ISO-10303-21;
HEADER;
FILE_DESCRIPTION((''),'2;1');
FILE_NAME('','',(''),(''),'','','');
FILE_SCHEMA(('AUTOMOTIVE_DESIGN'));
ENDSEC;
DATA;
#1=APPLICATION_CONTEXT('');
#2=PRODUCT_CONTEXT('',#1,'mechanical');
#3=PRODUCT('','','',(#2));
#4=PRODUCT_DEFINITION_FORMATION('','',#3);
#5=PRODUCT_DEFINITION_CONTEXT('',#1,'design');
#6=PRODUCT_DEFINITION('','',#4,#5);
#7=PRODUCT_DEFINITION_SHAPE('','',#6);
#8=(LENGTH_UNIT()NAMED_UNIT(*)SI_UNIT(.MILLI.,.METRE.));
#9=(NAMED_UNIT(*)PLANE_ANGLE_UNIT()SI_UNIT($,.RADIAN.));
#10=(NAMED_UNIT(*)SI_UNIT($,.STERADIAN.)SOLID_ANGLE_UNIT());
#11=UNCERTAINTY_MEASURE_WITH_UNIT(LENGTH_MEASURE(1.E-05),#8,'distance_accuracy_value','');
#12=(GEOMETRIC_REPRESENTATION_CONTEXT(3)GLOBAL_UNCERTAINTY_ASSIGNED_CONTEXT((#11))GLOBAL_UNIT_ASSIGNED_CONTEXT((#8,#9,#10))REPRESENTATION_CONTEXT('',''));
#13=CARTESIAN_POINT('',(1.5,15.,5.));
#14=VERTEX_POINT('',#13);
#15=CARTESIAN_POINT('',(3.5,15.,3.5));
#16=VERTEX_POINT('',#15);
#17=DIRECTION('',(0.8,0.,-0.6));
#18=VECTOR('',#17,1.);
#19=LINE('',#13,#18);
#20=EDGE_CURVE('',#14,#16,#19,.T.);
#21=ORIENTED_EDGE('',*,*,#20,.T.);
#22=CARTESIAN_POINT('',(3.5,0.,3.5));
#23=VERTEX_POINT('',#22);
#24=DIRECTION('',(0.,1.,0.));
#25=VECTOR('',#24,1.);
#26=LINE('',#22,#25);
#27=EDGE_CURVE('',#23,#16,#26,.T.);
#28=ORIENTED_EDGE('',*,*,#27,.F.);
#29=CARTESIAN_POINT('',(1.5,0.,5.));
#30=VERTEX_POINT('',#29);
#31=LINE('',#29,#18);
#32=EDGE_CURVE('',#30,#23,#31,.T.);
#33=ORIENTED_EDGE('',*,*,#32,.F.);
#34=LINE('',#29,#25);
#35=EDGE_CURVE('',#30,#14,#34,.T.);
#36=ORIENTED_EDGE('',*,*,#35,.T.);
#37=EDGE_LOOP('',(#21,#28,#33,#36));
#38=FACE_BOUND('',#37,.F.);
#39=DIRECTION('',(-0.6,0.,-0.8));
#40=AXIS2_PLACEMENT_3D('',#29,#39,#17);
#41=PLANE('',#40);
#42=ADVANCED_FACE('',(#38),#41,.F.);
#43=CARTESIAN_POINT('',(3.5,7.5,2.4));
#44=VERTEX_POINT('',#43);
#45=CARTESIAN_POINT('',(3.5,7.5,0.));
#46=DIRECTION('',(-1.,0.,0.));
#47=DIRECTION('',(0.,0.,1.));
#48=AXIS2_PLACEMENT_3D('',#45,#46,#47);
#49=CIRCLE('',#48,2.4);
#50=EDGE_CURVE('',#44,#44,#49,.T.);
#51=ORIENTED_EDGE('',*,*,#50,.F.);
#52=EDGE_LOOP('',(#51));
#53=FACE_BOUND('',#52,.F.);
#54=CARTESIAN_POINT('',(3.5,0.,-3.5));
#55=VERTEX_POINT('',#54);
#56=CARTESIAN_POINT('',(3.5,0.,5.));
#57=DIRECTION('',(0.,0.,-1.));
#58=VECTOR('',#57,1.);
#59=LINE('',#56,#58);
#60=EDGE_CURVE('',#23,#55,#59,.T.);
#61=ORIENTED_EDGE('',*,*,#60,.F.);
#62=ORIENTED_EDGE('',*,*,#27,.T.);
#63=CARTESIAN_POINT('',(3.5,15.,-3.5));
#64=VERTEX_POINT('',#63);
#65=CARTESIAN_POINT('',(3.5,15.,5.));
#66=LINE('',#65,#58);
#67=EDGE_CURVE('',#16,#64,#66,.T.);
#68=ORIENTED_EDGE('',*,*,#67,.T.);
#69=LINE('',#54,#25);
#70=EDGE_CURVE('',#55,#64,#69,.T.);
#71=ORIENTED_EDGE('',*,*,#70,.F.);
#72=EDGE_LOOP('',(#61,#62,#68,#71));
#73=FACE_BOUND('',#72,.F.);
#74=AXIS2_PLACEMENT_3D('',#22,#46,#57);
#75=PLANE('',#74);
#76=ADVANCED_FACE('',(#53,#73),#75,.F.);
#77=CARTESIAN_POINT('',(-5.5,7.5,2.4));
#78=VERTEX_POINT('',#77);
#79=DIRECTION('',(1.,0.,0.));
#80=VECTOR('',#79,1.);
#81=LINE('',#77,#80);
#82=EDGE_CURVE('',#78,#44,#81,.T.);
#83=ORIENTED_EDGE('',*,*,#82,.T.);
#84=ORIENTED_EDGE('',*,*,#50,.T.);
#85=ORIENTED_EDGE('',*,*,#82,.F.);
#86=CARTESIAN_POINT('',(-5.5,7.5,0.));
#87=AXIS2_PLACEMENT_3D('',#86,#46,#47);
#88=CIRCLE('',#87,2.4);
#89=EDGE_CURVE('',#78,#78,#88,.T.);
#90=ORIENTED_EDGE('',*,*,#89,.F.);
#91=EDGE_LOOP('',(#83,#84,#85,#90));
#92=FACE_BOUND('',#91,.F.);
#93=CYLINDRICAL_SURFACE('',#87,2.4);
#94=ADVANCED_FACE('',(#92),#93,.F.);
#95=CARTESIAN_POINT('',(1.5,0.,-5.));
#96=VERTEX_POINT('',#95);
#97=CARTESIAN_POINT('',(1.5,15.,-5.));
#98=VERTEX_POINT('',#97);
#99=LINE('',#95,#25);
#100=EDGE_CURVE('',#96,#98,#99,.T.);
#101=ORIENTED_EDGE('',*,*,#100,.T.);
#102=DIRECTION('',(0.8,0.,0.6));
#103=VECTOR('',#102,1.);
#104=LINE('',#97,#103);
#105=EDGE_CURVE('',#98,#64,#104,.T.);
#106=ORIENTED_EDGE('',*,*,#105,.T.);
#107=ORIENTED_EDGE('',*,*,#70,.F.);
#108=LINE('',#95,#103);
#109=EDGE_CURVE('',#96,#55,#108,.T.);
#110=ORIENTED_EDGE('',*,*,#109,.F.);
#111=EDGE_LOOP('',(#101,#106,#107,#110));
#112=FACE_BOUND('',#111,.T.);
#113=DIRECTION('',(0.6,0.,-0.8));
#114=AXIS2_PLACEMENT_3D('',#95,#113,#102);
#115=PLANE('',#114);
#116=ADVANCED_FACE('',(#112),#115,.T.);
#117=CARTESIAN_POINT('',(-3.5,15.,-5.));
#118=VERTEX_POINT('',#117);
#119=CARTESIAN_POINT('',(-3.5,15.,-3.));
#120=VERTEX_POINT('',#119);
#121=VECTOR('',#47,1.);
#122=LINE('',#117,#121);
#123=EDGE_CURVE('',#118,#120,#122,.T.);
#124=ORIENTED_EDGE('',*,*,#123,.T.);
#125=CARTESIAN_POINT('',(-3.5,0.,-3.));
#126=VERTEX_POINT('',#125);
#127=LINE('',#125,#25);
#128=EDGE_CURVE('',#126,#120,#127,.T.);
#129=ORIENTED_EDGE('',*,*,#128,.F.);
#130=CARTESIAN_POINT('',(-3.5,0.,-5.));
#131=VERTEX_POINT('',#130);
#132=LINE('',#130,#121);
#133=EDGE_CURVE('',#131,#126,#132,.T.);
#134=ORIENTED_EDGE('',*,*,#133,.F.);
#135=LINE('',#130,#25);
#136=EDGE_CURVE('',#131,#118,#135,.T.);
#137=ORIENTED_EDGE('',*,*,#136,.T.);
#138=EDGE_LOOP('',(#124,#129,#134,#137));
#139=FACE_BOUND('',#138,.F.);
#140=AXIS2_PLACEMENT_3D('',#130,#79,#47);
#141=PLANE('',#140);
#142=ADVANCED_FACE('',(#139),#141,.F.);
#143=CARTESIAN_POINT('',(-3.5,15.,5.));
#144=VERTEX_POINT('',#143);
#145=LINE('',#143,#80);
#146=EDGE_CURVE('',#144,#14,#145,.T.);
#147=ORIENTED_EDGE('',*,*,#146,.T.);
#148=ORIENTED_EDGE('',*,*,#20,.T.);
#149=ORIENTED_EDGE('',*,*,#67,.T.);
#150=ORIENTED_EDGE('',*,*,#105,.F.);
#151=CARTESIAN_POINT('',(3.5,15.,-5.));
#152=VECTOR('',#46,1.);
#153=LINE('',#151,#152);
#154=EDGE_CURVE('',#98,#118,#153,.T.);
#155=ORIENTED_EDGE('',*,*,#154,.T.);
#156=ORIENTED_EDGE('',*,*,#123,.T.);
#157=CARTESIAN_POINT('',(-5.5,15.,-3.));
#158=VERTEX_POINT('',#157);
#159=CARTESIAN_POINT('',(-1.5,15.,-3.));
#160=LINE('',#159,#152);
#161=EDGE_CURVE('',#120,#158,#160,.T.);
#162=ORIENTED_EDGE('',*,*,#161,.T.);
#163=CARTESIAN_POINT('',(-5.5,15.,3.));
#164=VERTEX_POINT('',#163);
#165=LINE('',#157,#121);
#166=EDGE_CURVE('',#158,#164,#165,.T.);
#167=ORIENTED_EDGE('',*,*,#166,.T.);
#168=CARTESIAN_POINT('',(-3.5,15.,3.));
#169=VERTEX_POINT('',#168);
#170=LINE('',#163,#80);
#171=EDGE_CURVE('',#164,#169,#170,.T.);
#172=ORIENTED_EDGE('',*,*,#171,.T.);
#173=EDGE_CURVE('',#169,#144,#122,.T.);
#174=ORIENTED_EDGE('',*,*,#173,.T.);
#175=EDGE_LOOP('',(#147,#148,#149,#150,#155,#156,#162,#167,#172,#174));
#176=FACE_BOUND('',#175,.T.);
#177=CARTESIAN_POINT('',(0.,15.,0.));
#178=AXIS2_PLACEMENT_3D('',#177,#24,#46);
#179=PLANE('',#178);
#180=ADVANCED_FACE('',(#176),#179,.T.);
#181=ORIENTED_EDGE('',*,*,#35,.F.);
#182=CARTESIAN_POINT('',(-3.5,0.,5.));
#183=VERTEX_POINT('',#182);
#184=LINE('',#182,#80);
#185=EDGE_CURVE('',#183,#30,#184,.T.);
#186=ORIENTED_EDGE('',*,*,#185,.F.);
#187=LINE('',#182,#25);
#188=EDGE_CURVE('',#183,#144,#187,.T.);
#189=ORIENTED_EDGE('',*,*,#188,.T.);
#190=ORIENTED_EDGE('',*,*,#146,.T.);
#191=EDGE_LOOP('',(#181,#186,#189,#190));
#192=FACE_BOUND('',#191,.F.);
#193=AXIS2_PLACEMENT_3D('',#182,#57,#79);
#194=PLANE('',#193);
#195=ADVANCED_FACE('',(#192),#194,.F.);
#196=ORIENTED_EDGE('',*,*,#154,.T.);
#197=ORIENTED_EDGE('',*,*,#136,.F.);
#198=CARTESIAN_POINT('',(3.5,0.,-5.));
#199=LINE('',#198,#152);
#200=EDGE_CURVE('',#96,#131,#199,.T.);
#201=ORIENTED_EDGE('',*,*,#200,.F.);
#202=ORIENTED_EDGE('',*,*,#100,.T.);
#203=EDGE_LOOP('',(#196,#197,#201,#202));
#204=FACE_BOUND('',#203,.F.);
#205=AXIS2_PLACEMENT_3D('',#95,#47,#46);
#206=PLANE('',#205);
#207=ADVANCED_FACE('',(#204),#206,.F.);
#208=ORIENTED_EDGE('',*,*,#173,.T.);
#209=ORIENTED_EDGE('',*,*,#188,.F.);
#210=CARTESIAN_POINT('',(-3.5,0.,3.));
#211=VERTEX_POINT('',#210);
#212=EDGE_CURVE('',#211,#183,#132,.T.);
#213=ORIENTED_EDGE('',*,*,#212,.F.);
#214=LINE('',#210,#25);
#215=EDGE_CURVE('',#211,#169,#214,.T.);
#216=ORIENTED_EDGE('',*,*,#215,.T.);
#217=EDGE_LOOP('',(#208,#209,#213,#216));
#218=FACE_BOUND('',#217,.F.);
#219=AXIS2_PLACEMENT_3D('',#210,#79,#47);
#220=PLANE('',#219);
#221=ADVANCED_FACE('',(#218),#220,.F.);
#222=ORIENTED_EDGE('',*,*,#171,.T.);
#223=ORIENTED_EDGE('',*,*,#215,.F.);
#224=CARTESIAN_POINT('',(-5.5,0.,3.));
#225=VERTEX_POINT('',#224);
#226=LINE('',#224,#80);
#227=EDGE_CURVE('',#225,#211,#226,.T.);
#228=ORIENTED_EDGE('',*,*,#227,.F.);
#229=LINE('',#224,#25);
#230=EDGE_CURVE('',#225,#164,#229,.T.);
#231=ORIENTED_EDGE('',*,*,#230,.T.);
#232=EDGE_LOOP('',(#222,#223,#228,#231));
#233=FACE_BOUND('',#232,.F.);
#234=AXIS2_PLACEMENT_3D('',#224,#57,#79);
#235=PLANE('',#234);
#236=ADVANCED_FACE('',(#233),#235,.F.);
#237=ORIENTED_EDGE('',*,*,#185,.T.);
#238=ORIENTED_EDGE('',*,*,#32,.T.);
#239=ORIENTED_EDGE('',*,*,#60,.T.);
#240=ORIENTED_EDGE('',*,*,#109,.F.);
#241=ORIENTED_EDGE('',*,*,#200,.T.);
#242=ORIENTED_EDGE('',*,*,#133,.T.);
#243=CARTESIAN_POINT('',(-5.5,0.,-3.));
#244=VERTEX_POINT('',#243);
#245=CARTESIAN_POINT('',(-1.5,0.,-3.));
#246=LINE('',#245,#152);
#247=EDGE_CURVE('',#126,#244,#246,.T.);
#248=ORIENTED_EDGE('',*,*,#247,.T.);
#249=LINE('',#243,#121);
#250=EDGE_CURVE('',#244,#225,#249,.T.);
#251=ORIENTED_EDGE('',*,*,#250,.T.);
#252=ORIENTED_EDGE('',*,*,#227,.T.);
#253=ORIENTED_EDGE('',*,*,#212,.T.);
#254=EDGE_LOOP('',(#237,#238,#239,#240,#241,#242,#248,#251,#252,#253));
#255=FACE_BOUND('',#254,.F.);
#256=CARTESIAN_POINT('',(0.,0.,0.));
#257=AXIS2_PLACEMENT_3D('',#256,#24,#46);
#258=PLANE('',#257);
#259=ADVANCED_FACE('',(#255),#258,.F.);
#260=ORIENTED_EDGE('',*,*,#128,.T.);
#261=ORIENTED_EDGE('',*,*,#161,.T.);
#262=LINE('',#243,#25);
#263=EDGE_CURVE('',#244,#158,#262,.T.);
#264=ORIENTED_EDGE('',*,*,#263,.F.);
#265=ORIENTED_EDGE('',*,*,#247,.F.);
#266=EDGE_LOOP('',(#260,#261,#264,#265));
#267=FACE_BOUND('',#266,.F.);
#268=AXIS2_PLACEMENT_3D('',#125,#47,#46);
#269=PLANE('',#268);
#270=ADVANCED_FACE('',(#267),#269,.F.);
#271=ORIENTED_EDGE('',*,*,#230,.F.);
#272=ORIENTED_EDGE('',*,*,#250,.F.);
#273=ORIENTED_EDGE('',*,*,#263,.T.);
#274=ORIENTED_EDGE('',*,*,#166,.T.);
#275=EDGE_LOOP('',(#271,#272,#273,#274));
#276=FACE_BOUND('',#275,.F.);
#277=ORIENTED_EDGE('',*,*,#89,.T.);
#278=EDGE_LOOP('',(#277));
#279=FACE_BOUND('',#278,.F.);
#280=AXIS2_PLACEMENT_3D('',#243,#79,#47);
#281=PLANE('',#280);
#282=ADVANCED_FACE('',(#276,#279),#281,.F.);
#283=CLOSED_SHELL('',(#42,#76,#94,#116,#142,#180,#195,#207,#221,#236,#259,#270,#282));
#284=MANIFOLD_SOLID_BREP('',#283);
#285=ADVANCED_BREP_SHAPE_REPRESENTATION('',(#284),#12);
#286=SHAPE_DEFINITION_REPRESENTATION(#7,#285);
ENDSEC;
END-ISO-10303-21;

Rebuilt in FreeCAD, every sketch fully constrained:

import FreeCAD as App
import Part
import Sketcher
from FreeCAD import Vector

doc = App.newDocument("Part")
body = doc.addObject("PartDesign::Body", "Body")

sketch1 = body.newObject("Sketcher::SketchObject", "Sketch")
sketch1.AttachmentSupport = (doc.getObject("XZ_Plane"), [""])
sketch1.MapMode = "FlatFace"
sketch1.addGeometry([
    Part.LineSegment(Vector(-3.5, 3, 0), Vector(-3.5, 5, 0)),
    Part.LineSegment(Vector(-3.5, 5, 0), Vector(1.5, 5, 0)),
    Part.LineSegment(Vector(1.5, 5, 0), Vector(3.5, 3.5, 0)),
    Part.LineSegment(Vector(3.5, 3.5, 0), Vector(3.5, -3.5, 0)),
    Part.LineSegment(Vector(3.5, -3.5, 0), Vector(1.5, -5, 0)),
    Part.LineSegment(Vector(1.5, -5, 0), Vector(-3.5, -5, 0)),
    Part.LineSegment(Vector(-3.5, -5, 0), Vector(-3.5, -3, 0)),
    Part.LineSegment(Vector(-3.5, -3, 0), Vector(-5.5, -3, 0)),
    Part.LineSegment(Vector(-5.5, -3, 0), Vector(-5.5, 3, 0)),
    Part.LineSegment(Vector(-5.5, 3, 0), Vector(-3.5, 3, 0)),
], False)
sketch1.addConstraint([
    Sketcher.Constraint("Coincident", 0, 2, 1, 1),
    Sketcher.Constraint("Coincident", 1, 2, 2, 1),
    Sketcher.Constraint("Coincident", 2, 2, 3, 1),
    Sketcher.Constraint("Coincident", 3, 2, 4, 1),
    Sketcher.Constraint("Coincident", 4, 2, 5, 1),
    Sketcher.Constraint("Coincident", 5, 2, 6, 1),
    Sketcher.Constraint("Coincident", 6, 2, 7, 1),
    Sketcher.Constraint("Coincident", 7, 2, 8, 1),
    Sketcher.Constraint("Coincident", 8, 2, 9, 1),
    Sketcher.Constraint("Coincident", 9, 2, 0, 1),
    Sketcher.Constraint("Vertical", 0),
    Sketcher.Constraint("Horizontal", 1),
    Sketcher.Constraint("Vertical", 3),
    Sketcher.Constraint("Horizontal", 5),
    Sketcher.Constraint("Vertical", 6),
    Sketcher.Constraint("Horizontal", 7),
    Sketcher.Constraint("Vertical", 8),
    Sketcher.Constraint("Horizontal", 9),
    Sketcher.Constraint("Symmetric", 1, 2, 4, 2, -1),
    Sketcher.Constraint("Symmetric", 6, 2, 9, 2, -1),
    Sketcher.Constraint("Equal", 9, 0),
    Sketcher.Constraint("Equal", 2, 4),
    Sketcher.Constraint("DistanceX", 1, 1, 1, 2, 5.0),
    Sketcher.Constraint("DistanceY", 3, 2, 3, 1, 7.0),
    Sketcher.Constraint("DistanceY", 8, 1, 8, 2, 6.0),
    Sketcher.Constraint("DistanceY", -1, 1, 0, 2, 5.0),
    Sketcher.Constraint("DistanceX", 0, 2, 2, 2, 7.0),
    Sketcher.Constraint("DistanceX", 0, 2, -1, 1, 3.5),
])
pad1 = body.newObject("PartDesign::Pad", "Pad")
pad1.Profile = sketch1
pad1.Length = 15
pad1.Reversed = True

sketch2 = body.newObject("Sketcher::SketchObject", "Sketch001")
sketch2.AttachmentSupport = (doc.getObject("YZ_Plane"), [""])
sketch2.MapMode = "FlatFace"
sketch2.AttachmentOffset = App.Placement(Vector(0, 0, -5.5), App.Rotation())
sketch2.addGeometry(Part.Circle(Vector(7.5, 0, 0), Vector(0, 0, 1), 2.4), False)
sketch2.addConstraint([
    Sketcher.Constraint("PointOnObject", 0, 3, -1),
    Sketcher.Constraint("Diameter", 0, 4.8),
    Sketcher.Constraint("DistanceX", -1, 1, 0, 3, 7.5),
])
pocket1 = body.newObject("PartDesign::Pocket", "Pocket")
pocket1.Profile = sketch2
pocket1.Type = "ThroughAll"
pocket1.Reversed = True

doc.recompute()
